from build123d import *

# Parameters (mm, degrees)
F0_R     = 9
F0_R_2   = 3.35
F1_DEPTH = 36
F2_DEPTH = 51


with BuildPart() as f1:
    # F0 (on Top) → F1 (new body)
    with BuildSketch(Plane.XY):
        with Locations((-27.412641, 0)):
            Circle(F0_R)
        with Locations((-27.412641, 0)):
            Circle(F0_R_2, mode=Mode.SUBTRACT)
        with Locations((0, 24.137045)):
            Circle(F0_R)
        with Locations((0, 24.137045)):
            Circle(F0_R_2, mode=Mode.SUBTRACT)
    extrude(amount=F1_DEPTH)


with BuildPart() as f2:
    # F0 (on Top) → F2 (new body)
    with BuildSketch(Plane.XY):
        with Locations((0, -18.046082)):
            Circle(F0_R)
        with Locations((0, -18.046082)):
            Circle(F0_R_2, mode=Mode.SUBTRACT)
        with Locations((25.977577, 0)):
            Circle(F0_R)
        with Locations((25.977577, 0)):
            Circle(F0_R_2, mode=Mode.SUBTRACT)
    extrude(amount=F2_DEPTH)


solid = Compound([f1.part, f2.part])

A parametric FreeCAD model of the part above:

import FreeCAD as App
import Part
import Sketcher
Q = App.Units.Quantity

doc = App.newDocument("Part")
params = doc.addObject("Spreadsheet::Sheet", "Params")
for row, (alias, value) in enumerate([
    ("sketch1_diameter", "18 mm"),
    ("sketch1_diameter2", "6.7 mm"),
    ("pad1_length", "36 mm"),
    ("sketch2_diameter", "18 mm"),
    ("sketch2_diameter2", "6.7 mm"),
    ("pad2_length", "51 mm"),
], start=1):
    params.set(f"A{row}", alias)
    params.set(f"B{row}", "=" + value)
    params.setAlias(f"B{row}", alias)

body = doc.addObject("PartDesign::Body", "Body")
body.AllowCompound = True

sketch1 = body.newObject("Sketcher::SketchObject", "Sketch")
sketch1.AttachmentSupport = (doc.getObject("XY_Plane"), [""])
sketch1.MapMode = "FlatFace"
sketch1.addGeometry(Part.Circle(App.Vector(-27.4, 0, 0), App.Vector(0, 0, 1), 9), False)
sketch1.addGeometry(Part.Circle(App.Vector(-27.4, 0, 0), App.Vector(0, 0, 1), 3.4), False)
sketch1.addGeometry(Part.Circle(App.Vector(0, 24.1, 0), App.Vector(0, 0, 1), 9), False)
sketch1.addGeometry(Part.Circle(App.Vector(0, 24.1, 0), App.Vector(0, 0, 1), 3.4), False)
sketch1.addConstraint(Sketcher.Constraint("Coincident", 1, 3, 0, 3))
sketch1.addConstraint(Sketcher.Constraint("Coincident", 3, 3, 2, 3))
sketch1.addConstraint(Sketcher.Constraint("Equal", 0, 2))
sketch1.addConstraint(Sketcher.Constraint("Equal", 1, 3))
sketch1.addConstraint(Sketcher.Constraint("PointOnObject", 0, 3, -1))
sketch1.addConstraint(Sketcher.Constraint("PointOnObject", 2, 3, -2))
sketch1.addConstraint(Sketcher.Constraint("Diameter", 0, Q("18 mm")))
sketch1.addConstraint(Sketcher.Constraint("Diameter", 1, Q("6.7 mm")))
sketch1.addConstraint(Sketcher.Constraint("DistanceX", 0, 3, -1, 1, Q("27.412641 mm")))
sketch1.addConstraint(Sketcher.Constraint("DistanceY", -1, 1, 2, 3, Q("24.137045 mm")))
sketch1.setExpression("Constraints[6]", "Params.sketch1_diameter")
sketch1.setExpression("Constraints[7]", "Params.sketch1_diameter2")
pad1 = body.newObject("PartDesign::Pad", "Pad")
pad1.Profile = sketch1
pad1.setExpression("Length", "Params.pad1_length")
body2 = doc.addObject("PartDesign::Body", "Body001")
body2.AllowCompound = True

sketch2 = body2.newObject("Sketcher::SketchObject", "Sketch001")
sketch2.AttachmentSupport = (doc.getObject("XY_Plane001"), [""])
sketch2.MapMode = "FlatFace"
sketch2.addGeometry(Part.Circle(App.Vector(0, -18, 0), App.Vector(0, 0, 1), 9), False)
sketch2.addGeometry(Part.Circle(App.Vector(0, -18, 0), App.Vector(0, 0, 1), 3.4), False)
sketch2.addGeometry(Part.Circle(App.Vector(26, 0, 0), App.Vector(0, 0, 1), 9), False)
sketch2.addGeometry(Part.Circle(App.Vector(26, 0, 0), App.Vector(0, 0, 1), 3.4), False)
sketch2.addConstraint(Sketcher.Constraint("Coincident", 1, 3, 0, 3))
sketch2.addConstraint(Sketcher.Constraint("Coincident", 3, 3, 2, 3))
sketch2.addConstraint(Sketcher.Constraint("Equal", 0, 2))
sketch2.addConstraint(Sketcher.Constraint("Equal", 1, 3))
sketch2.addConstraint(Sketcher.Constraint("PointOnObject", 0, 3, -2))
sketch2.addConstraint(Sketcher.Constraint("PointOnObject", 2, 3, -1))
sketch2.addConstraint(Sketcher.Constraint("Diameter", 0, Q("18 mm")))
sketch2.addConstraint(Sketcher.Constraint("Diameter", 1, Q("6.7 mm")))
sketch2.addConstraint(Sketcher.Constraint("DistanceY", 0, 3, -1, 1, Q("18.046082 mm")))
sketch2.addConstraint(Sketcher.Constraint("DistanceX", -1, 1, 2, 3, Q("25.977577 mm")))
sketch2.setExpression("Constraints[6]", "Params.sketch2_diameter")
sketch2.setExpression("Constraints[7]", "Params.sketch2_diameter2")
pad2 = body2.newObject("PartDesign::Pad", "Pad001")
pad2.Profile = sketch2
pad2.setExpression("Length", "Params.pad2_length")

doc.recompute()
